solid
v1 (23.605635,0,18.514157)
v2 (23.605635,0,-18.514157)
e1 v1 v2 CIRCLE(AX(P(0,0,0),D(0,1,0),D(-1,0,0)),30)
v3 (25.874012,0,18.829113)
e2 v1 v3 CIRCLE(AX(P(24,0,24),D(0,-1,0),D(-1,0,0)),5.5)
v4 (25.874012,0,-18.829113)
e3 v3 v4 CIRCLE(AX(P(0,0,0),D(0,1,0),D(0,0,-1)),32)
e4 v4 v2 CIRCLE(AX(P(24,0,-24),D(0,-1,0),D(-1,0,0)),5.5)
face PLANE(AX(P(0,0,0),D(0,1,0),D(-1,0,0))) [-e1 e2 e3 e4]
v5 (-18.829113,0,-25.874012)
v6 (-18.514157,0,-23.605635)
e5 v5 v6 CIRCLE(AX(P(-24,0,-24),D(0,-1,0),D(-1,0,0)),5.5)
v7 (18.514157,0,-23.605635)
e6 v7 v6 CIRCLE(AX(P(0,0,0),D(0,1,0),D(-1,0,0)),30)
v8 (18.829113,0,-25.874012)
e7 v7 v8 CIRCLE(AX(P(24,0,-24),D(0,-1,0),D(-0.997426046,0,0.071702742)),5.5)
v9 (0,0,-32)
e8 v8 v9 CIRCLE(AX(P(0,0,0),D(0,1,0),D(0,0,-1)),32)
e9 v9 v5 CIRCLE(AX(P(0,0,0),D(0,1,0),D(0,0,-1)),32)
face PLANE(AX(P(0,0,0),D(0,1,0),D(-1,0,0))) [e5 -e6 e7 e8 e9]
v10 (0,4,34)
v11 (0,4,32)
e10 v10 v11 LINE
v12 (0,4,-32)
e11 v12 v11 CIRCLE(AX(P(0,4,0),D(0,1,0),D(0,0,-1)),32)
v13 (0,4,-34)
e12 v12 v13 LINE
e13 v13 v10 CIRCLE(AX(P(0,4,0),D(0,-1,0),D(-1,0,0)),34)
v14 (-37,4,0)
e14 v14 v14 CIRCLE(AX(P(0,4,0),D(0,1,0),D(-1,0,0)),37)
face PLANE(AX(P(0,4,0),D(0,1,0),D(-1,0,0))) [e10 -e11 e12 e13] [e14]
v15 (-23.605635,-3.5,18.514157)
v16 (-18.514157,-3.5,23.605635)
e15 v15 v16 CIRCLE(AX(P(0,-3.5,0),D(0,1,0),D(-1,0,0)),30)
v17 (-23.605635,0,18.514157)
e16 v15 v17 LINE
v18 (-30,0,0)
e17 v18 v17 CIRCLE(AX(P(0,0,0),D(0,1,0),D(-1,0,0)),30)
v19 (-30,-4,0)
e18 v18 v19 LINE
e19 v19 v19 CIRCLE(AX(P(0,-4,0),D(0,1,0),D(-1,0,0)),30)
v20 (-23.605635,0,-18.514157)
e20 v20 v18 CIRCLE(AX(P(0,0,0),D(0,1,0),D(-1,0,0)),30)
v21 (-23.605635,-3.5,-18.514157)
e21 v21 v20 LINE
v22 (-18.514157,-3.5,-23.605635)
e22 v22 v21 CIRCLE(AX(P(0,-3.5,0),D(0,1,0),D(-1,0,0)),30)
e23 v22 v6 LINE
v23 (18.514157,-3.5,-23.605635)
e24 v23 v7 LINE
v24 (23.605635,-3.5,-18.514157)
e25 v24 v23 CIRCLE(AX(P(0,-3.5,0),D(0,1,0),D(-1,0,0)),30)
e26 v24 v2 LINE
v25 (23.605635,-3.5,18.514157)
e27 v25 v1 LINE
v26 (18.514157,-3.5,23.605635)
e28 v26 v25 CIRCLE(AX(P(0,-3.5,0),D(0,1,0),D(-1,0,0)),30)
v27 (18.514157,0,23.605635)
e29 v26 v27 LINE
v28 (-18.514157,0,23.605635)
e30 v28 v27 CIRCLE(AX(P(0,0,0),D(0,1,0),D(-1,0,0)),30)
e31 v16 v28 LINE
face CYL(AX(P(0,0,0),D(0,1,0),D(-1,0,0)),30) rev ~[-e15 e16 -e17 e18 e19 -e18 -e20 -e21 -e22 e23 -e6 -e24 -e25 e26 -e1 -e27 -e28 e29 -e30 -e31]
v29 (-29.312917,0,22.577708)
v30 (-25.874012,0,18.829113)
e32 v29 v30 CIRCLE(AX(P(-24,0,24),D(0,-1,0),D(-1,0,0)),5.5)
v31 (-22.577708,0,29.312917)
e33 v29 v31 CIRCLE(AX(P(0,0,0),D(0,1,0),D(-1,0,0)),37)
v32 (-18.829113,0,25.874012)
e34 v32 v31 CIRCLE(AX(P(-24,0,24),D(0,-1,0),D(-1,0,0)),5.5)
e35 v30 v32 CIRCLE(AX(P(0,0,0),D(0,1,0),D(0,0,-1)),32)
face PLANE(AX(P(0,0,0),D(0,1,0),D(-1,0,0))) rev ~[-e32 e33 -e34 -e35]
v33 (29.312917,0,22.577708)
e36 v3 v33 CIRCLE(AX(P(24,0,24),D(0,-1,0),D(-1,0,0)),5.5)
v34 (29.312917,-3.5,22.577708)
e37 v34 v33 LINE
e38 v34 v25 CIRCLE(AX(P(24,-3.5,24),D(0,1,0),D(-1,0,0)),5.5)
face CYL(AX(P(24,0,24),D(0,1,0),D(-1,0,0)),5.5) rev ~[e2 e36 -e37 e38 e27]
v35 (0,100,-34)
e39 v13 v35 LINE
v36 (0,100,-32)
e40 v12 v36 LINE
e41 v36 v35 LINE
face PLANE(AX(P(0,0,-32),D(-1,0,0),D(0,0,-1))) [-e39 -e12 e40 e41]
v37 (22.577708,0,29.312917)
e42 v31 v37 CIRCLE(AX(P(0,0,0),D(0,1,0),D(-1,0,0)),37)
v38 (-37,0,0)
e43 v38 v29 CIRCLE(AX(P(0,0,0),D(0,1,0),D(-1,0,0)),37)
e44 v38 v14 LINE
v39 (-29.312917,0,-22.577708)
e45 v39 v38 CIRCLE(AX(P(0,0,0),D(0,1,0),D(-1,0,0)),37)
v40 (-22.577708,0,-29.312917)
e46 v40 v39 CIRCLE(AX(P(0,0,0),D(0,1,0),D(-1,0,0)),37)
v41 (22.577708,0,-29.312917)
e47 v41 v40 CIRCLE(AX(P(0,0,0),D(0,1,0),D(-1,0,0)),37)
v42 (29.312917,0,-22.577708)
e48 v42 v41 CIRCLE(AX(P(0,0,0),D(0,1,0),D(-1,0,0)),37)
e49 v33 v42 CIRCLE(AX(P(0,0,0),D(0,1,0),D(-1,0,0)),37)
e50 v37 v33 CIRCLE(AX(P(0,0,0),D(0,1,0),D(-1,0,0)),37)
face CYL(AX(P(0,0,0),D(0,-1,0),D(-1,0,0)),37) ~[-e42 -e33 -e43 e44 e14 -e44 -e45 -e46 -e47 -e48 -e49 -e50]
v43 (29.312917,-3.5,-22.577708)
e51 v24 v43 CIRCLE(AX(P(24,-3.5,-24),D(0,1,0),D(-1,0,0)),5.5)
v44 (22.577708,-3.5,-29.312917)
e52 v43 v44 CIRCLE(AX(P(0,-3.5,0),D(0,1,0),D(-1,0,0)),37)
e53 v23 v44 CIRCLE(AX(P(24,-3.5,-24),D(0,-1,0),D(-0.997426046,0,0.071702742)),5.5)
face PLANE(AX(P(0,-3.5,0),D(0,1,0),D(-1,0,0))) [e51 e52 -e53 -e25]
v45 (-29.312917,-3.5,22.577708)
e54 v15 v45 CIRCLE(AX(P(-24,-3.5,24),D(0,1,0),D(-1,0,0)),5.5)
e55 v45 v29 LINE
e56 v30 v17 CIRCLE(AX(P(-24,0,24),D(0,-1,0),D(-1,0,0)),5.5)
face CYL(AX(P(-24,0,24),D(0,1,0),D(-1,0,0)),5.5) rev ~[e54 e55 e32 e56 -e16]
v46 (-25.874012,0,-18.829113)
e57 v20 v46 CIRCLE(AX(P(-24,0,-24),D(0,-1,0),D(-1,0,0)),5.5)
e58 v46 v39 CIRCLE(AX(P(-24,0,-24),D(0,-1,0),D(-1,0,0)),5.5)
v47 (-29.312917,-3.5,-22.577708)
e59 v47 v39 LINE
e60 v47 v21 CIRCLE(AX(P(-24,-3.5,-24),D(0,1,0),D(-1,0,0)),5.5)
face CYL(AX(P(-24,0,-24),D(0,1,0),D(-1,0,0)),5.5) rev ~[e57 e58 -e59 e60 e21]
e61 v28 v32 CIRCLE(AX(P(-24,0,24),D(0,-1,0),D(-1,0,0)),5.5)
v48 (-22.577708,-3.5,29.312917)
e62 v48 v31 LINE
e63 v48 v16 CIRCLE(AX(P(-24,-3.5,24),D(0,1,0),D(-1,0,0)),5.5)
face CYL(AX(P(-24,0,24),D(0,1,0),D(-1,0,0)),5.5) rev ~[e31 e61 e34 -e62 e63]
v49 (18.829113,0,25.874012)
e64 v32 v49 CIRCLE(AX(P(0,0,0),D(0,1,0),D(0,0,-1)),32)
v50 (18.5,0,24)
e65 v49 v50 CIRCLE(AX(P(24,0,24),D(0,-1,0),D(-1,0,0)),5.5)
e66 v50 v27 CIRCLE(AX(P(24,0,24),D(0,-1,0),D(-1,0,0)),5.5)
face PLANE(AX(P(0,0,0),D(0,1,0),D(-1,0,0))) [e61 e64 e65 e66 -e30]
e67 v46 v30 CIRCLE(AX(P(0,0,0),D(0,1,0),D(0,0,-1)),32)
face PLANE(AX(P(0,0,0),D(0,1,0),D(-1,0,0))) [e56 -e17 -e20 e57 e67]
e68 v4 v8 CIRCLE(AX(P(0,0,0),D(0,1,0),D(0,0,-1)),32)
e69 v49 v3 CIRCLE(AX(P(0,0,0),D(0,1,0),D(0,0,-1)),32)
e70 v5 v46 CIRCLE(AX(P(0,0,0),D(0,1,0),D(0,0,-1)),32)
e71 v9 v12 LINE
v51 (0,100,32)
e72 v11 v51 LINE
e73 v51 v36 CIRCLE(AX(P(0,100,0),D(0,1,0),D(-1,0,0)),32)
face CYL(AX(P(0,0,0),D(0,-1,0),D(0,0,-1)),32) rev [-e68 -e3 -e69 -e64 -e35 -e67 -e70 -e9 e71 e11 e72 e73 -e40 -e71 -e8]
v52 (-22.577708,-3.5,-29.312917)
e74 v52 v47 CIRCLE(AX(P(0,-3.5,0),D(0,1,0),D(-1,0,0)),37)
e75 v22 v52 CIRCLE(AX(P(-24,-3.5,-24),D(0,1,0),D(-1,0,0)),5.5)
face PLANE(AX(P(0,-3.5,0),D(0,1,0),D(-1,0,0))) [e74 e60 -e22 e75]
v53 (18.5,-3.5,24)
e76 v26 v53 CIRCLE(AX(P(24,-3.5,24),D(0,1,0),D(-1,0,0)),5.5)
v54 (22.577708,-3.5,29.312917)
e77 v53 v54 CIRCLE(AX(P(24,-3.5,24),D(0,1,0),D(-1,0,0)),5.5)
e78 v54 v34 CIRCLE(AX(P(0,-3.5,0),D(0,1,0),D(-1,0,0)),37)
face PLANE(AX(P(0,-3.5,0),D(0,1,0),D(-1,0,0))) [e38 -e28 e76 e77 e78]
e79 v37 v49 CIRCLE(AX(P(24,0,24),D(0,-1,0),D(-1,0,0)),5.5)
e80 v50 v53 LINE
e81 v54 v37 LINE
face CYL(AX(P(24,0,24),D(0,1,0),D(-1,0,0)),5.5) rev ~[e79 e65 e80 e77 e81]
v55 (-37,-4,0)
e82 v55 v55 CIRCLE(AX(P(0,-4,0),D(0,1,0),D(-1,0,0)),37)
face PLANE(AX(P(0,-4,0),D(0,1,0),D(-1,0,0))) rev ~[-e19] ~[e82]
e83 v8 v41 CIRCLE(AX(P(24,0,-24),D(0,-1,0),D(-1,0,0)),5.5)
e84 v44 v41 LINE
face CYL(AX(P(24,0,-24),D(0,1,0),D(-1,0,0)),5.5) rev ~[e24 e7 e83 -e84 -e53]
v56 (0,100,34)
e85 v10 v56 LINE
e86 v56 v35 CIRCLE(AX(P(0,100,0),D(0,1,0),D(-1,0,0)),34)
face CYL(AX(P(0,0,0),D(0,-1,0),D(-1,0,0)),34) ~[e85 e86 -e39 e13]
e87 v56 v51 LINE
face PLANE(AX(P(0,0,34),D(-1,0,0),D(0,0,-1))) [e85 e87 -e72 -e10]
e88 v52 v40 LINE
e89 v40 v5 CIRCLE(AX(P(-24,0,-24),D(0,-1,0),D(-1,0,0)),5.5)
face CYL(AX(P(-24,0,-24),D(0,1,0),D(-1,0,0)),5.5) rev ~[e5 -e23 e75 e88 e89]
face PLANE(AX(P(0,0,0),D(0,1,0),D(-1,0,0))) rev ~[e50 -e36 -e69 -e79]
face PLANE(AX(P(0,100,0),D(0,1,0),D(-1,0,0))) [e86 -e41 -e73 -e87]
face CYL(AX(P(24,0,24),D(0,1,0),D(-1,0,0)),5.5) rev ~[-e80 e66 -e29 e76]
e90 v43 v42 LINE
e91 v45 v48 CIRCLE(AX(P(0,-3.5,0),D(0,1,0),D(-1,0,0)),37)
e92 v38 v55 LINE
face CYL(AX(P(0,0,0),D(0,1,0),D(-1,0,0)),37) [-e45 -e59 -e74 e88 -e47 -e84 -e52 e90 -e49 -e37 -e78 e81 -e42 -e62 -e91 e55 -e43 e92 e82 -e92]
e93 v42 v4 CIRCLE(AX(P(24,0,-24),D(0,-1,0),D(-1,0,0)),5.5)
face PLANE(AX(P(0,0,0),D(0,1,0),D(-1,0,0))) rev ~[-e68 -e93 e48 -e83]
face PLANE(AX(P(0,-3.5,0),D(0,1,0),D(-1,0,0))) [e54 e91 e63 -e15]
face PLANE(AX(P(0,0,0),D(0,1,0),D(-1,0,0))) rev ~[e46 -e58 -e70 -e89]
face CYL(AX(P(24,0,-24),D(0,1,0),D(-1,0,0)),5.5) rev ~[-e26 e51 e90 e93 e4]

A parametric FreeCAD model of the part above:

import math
import FreeCAD as App
import Part
import Sketcher

V = App.Vector
Q = App.Units.Quantity

doc = App.newDocument("Part")
params = doc.addObject("Spreadsheet::Sheet", "Params")
for row, (alias, value) in enumerate([
    ("sketch1_radius", "32 mm"),
    ("sketch1_height", "2 mm"),
    ("pad1_length", "100 mm"),
    ("sketch2_diameter", "64 mm"),
    ("sketch2_diameter2", "60 mm"),
    ("pad2_length", "4 mm"),
    ("sketch3_diameter", "74 mm"),
    ("sketch3_diameter2", "64 mm"),
    ("pad3_length", "8 mm"),
    ("sketch4_diameter", "11 mm"),
    ("pocket1_length", "3.5 mm"),
], start=1):
    params.set(f"A{row}", alias)
    params.set(f"B{row}", "=" + value)
    params.setAlias(f"B{row}", alias)

body = doc.addObject("PartDesign::Body", "Body")
body.AllowCompound = True

sketch1 = body.newObject("Sketcher::SketchObject", "Sketch")
sketch1.AttachmentSupport = (doc.getObject("XZ_Plane"), [""])
sketch1.MapMode = "FlatFace"
sketch1.addGeometry(Part.ArcOfCircle(Part.Circle(V(0, 0, 0), V(0, 0, 1), 32), math.radians(-90), math.radians(90)), False)
sketch1.addGeometry(Part.LineSegment(V(0, 32, 0), V(0, 34, 0)), False)
sketch1.addGeometry(Part.ArcOfCircle(Part.Circle(V(0, 0, 0), V(0, 0, 1), 34), math.radians(-90), math.radians(90)), False)
sketch1.addGeometry(Part.LineSegment(V(0, -34, 0), V(0, -32, 0)), False)
sketch1.addConstraint(Sketcher.Constraint("Coincident", 0, 2, 1, 1))
sketch1.addConstraint(Sketcher.Constraint("Coincident", 1, 2, 2, 2))
sketch1.addConstraint(Sketcher.Constraint("Coincident", 2, 1, 3, 1))
sketch1.addConstraint(Sketcher.Constraint("Coincident", 3, 2, 0, 1))
sketch1.addConstraint(Sketcher.Constraint("Vertical", 1))
sketch1.addConstraint(Sketcher.Constraint("Vertical", 3))
sketch1.addConstraint(Sketcher.Constraint("Coincident", 0, 3, -1, 1))
sketch1.addConstraint(Sketcher.Constraint("Coincident", 2, 3, -1, 1))
sketch1.addConstraint(Sketcher.Constraint("PointOnObject", 0, 2, -2))
sketch1.addConstraint(Sketcher.Constraint("PointOnObject", 2, 1, -2))
sketch1.addConstraint(Sketcher.Constraint("Radius", 0, Q("32 mm")))
sketch1.addConstraint(Sketcher.Constraint("DistanceY", 1, 1, 1, 2, Q("2 mm")))
sketch1.setExpression("Constraints[10]", "Params.sketch1_radius")
sketch1.setExpression("Constraints[11]", "Params.sketch1_height")
pad1 = body.newObject("PartDesign::Pad", "Pad")
pad1.Profile = sketch1
pad1.setExpression("Length", "Params.pad1_length")
pad1.Reversed = True

sketch2 = body.newObject("Sketcher::SketchObject", "Sketch001")
sketch2.AttachmentSupport = (doc.getObject("XZ_Plane"), [""])
sketch2.MapMode = "FlatFace"
sketch2.addGeometry(Part.Circle(V(0, 0, 0), V(0, 0, 1), 32), False)
sketch2.addGeometry(Part.Circle(V(0, 0, 0), V(0, 0, 1), 30), False)
sketch2.addConstraint(Sketcher.Constraint("Coincident", 0, 3, -1, 1))
sketch2.addConstraint(Sketcher.Constraint("Coincident", 1, 3, -1, 1))
sketch2.addConstraint(Sketcher.Constraint("Diameter", 0, Q("64 mm")))
sketch2.addConstraint(Sketcher.Constraint("Diameter", 1, Q("60 mm")))
sketch2.setExpression("Constraints[2]", "Params.sketch2_diameter")
sketch2.setExpression("Constraints[3]", "Params.sketch2_diameter2")
pad2 = body.newObject("PartDesign::Pad", "Pad001")
pad2.Profile = sketch2
pad2.setExpression("Length", "Params.pad2_length")

sketch3 = body.newObject("Sketcher::SketchObject", "Sketch002")
sketch3.AttachmentSupport = (doc.getObject("XZ_Plane"), [""])
sketch3.MapMode = "FlatFace"
sketch3.addGeometry(Part.Circle(V(0, 0, 0), V(0, 0, 1), 37), False)
sketch3.addGeometry(Part.Circle(V(0, 0, 0), V(0, 0, 1), 32), False)
sketch3.addConstraint(Sketcher.Constraint("Coincident", 0, 3, -1, 1))
sketch3.addConstraint(Sketcher.Constraint("Coincident", 1, 3, -1, 1))
sketch3.addConstraint(Sketcher.Constraint("Diameter", 0, Q("74 mm")))
sketch3.addConstraint(Sketcher.Constraint("Diameter", 1, Q("64 mm")))
sketch3.setExpression("Constraints[2]", "Params.sketch3_diameter")
sketch3.setExpression("Constraints[3]", "Params.sketch3_diameter2")
pad3 = body.newObject("PartDesign::Pad", "Pad002")
pad3.Profile = sketch3
pad3.setExpression("Length", "Params.pad3_length")
pad3.Midplane = True

sketch4 = body.newObject("Sketcher::SketchObject", "Sketch003")
sketch4.AttachmentSupport = (doc.getObject("XZ_Plane"), [""])
sketch4.MapMode = "FlatFace"
sketch4.addGeometry(Part.Circle(V(-24, 24, 0), V(0, 0, 1), 5.5), False)
sketch4.addGeometry(Part.Circle(V(24, 24, 0), V(0, 0, 1), 5.5), False)
sketch4.addGeometry(Part.Circle(V(-24, -24, 0), V(0, 0, 1), 5.5), False)
sketch4.addGeometry(Part.Circle(V(24, -24, 0), V(0, 0, 1), 5.5), False)
sketch4.addConstraint(Sketcher.Constraint("Equal", 0, 1))
sketch4.addConstraint(Sketcher.Constraint("Equal", 1, 2))
sketch4.addConstraint(Sketcher.Constraint("Equal", 2, 3))
sketch4.addConstraint(Sketcher.Constraint("Symmetric", 1, 3, 2, 3, -1, 1))
sketch4.addConstraint(Sketcher.Constraint("Symmetric", 0, 3, 3, 3, -1, 1))
sketch4.addConstraint(Sketcher.Constraint("Symmetric", 0, 3, 1, 3, -2))
sketch4.addConstraint(Sketcher.Constraint("Diameter", 0, Q("11 mm")))
sketch4.addConstraint(Sketcher.Constraint("DistanceX", 0, 3, -1, 1, Q("24 mm")))
sketch4.addConstraint(Sketcher.Constraint("DistanceY", -1, 1, 0, 3, Q("24 mm")))
sketch4.setExpression("Constraints[6]", "Params.sketch4_diameter")
pocket1 = body.newObject("PartDesign::Pocket", "Pocket")
pocket1.Profile = sketch4
pocket1.setExpression("Length", "Params.pocket1_length")
pocket1.Reversed = True

doc.recompute()
